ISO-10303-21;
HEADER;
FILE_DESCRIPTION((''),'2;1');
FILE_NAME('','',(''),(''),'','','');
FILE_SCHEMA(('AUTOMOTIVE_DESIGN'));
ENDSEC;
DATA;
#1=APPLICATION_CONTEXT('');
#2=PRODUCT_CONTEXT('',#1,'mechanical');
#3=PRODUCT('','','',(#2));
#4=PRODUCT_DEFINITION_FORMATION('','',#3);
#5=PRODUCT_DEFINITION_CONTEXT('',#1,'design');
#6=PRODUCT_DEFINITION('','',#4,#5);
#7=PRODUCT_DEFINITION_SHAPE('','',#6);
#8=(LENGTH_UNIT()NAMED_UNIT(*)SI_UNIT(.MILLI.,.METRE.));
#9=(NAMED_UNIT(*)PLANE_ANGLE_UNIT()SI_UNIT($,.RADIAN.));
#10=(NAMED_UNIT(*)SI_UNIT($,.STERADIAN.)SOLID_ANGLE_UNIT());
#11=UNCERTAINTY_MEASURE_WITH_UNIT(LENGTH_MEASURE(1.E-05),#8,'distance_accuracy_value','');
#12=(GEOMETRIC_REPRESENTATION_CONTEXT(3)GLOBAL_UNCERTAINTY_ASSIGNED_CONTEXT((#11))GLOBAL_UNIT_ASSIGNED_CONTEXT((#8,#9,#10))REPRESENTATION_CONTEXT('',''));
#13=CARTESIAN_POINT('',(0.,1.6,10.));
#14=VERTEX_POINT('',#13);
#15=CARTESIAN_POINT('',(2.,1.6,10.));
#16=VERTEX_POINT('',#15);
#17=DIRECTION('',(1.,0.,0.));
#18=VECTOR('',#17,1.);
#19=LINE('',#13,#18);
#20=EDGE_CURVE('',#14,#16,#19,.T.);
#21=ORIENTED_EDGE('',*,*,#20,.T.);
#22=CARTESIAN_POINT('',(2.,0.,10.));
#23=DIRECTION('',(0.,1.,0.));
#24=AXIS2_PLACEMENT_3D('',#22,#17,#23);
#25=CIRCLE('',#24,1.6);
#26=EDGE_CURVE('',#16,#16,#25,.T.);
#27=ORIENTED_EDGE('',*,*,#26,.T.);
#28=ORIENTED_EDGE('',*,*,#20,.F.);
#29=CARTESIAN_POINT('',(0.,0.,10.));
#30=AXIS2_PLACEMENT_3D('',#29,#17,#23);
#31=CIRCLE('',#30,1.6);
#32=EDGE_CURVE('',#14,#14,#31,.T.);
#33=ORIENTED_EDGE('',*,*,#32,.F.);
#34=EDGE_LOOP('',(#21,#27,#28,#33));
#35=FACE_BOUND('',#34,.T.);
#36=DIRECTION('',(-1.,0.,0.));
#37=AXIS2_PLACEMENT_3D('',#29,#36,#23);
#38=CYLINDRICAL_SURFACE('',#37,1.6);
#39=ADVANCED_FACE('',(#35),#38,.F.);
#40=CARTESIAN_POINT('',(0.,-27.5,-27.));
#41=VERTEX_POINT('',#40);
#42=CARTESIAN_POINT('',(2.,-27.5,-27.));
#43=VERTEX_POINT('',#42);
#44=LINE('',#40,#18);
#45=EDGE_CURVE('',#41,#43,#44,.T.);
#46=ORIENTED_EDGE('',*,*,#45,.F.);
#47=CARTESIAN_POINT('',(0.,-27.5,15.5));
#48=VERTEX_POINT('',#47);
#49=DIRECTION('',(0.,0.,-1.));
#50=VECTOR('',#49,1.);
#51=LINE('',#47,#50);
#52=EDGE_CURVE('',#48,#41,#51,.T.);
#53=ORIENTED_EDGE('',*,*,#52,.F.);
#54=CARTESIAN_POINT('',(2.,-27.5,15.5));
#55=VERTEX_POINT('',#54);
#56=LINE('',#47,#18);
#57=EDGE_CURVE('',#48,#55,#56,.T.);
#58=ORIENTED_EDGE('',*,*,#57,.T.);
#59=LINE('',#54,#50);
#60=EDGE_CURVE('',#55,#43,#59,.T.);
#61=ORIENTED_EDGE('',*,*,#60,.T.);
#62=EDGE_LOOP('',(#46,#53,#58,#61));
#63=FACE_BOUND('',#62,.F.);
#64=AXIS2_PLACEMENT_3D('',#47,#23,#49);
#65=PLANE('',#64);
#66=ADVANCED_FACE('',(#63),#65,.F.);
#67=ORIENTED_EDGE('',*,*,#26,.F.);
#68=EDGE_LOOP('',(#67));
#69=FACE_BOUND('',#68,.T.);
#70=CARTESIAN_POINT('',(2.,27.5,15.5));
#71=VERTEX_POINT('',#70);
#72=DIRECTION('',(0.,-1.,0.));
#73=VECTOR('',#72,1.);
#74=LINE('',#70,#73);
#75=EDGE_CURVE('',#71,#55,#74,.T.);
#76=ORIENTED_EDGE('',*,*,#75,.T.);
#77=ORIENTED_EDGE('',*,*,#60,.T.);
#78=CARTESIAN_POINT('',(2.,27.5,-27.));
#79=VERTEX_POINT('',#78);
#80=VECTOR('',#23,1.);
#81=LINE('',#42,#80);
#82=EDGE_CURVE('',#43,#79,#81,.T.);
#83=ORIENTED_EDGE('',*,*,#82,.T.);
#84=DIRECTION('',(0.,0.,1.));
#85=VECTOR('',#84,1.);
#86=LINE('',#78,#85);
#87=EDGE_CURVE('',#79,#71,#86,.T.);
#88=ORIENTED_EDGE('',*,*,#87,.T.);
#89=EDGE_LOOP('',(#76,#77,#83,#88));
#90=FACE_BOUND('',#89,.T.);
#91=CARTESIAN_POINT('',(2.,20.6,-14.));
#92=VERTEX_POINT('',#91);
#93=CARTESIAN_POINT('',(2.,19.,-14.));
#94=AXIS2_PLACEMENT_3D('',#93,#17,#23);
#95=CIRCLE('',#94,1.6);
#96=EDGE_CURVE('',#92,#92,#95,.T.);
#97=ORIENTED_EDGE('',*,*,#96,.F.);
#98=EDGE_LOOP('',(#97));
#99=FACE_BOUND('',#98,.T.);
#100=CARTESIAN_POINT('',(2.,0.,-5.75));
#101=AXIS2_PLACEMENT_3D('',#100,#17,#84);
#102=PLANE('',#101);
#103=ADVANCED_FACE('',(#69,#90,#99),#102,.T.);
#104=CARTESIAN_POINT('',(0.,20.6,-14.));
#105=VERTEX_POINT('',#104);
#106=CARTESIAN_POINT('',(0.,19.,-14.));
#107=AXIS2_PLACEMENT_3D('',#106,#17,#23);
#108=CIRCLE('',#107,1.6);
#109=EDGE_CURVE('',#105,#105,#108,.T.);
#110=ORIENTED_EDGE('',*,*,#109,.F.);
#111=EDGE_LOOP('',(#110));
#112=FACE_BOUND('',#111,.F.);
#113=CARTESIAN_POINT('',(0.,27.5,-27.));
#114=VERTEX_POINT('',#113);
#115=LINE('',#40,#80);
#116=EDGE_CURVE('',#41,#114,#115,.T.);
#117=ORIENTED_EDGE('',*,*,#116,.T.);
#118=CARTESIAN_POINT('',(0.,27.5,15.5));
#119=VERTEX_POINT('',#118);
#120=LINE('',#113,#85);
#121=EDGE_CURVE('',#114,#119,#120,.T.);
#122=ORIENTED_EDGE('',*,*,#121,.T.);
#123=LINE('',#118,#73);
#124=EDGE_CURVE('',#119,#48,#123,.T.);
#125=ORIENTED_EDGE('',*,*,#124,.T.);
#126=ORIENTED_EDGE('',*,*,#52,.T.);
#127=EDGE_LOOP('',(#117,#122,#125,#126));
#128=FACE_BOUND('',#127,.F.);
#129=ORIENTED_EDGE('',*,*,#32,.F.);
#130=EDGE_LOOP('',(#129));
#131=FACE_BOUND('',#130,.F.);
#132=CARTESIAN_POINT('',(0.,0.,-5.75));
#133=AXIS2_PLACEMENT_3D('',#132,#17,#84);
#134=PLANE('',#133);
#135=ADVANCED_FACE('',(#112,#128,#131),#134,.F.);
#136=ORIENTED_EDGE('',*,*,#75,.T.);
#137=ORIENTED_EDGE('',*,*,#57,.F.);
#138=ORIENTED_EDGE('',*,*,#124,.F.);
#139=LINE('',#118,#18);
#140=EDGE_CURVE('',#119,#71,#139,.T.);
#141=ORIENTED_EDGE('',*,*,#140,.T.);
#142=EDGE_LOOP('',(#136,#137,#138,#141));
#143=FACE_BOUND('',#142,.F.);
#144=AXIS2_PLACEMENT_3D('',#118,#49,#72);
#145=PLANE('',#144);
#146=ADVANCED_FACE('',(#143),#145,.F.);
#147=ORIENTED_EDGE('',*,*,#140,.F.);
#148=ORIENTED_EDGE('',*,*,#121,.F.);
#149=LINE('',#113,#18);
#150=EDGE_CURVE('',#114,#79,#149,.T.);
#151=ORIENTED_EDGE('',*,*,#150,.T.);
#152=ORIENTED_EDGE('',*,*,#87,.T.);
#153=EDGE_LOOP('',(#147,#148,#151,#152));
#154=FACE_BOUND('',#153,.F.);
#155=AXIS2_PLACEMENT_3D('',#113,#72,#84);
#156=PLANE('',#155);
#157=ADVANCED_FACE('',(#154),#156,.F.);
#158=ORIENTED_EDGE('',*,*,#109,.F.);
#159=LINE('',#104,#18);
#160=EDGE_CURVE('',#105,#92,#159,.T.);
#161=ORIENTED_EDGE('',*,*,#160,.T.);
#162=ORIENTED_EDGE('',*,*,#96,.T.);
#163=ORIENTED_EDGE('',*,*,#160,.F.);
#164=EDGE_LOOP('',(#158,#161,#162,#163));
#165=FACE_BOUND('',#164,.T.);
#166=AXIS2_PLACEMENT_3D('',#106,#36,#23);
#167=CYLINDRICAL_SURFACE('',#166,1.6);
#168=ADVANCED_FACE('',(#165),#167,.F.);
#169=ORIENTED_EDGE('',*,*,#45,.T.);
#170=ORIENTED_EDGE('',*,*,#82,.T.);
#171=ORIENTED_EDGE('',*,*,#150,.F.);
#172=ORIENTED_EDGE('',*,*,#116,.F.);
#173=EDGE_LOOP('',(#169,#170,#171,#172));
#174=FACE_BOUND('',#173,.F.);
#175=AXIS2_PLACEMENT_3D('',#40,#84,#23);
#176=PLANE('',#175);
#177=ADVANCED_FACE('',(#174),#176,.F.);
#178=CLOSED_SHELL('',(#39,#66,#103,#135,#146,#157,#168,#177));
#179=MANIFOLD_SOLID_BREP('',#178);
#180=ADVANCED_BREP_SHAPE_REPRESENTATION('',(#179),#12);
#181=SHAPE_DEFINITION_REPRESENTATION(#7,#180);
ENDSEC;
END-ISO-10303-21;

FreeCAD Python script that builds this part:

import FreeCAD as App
import Part
import Sketcher

V = App.Vector
Q = App.Units.Quantity

doc = App.newDocument("Part")
body = doc.addObject("PartDesign::Body", "Body")

sketch1 = body.newObject("Sketcher::SketchObject", "Sketch")
sketch1.AttachmentSupport = (doc.getObject("YZ_Plane"), [""])
sketch1.MapMode = "FlatFace"
sketch1.addGeometry(Part.LineSegment(V(-28, -27, 0), V(28, -27, 0)), False)
sketch1.addGeometry(Part.LineSegment(V(28, -27, 0), V(28, 16, 0)), False)
sketch1.addGeometry(Part.LineSegment(V(28, 16, 0), V(-28, 16, 0)), False)
sketch1.addGeometry(Part.LineSegment(V(-28, 16, 0), V(-28, -27, 0)), False)
sketch1.addConstraint(Sketcher.Constraint("Coincident", 0, 2, 1, 1))
sketch1.addConstraint(Sketcher.Constraint("Coincident", 1, 2, 2, 1))
sketch1.addConstraint(Sketcher.Constraint("Coincident", 2, 2, 3, 1))
sketch1.addConstraint(Sketcher.Constraint("Coincident", 3, 2, 0, 1))
sketch1.addConstraint(Sketcher.Constraint("Horizontal", 0))
sketch1.addConstraint(Sketcher.Constraint("Vertical", 1))
sketch1.addConstraint(Sketcher.Constraint("Horizontal", 2))
sketch1.addConstraint(Sketcher.Constraint("Vertical", 3))
sketch1.addConstraint(Sketcher.Constraint("DistanceX", 0, 1, 0, 2, Q("55 mm")))
sketch1.addConstraint(Sketcher.Constraint("DistanceY", 1, 1, 1, 2, Q("42.5 mm")))
sketch1.addConstraint(Sketcher.Constraint("DistanceY", 0, 2, -1, 1, Q("27 mm")))
sketch1.addConstraint(Sketcher.Constraint("DistanceX", -1, 1, 0, 2, Q("27.5 mm")))
pad1 = body.newObject("PartDesign::Pad", "Pad")
pad1.Profile = sketch1
pad1.Length = 2

sketch2 = body.newObject("Sketcher::SketchObject", "Sketch001")
sketch2.AttachmentSupport = (doc.getObject("YZ_Plane"), [""])
sketch2.MapMode = "FlatFace"
sketch2.addGeometry(Part.Circle(V(0, 10, 0), V(0, 0, 1), 1.6), False)
sketch2.addGeometry(Part.Circle(V(19, -14, 0), V(0, 0, 1), 1.6), False)
sketch2.addConstraint(Sketcher.Constraint("Equal", 0, 1))
sketch2.addConstraint(Sketcher.Constraint("PointOnObject", 0, 3, -2))
sketch2.addConstraint(Sketcher.Constraint("Diameter", 0, Q("3.2 mm")))
sketch2.addConstraint(Sketcher.Constraint("DistanceY", -1, 1, 0, 3, Q("10 mm")))
sketch2.addConstraint(Sketcher.Constraint("DistanceX", -1, 1, 1, 3, Q("19 mm")))
sketch2.addConstraint(Sketcher.Constraint("DistanceY", 1, 3, -1, 1, Q("14 mm")))
pocket1 = body.newObject("PartDesign::Pocket", "Pocket")
pocket1.Profile = sketch2
pocket1.Length = 2
pocket1.Reversed = True

doc.recompute()
